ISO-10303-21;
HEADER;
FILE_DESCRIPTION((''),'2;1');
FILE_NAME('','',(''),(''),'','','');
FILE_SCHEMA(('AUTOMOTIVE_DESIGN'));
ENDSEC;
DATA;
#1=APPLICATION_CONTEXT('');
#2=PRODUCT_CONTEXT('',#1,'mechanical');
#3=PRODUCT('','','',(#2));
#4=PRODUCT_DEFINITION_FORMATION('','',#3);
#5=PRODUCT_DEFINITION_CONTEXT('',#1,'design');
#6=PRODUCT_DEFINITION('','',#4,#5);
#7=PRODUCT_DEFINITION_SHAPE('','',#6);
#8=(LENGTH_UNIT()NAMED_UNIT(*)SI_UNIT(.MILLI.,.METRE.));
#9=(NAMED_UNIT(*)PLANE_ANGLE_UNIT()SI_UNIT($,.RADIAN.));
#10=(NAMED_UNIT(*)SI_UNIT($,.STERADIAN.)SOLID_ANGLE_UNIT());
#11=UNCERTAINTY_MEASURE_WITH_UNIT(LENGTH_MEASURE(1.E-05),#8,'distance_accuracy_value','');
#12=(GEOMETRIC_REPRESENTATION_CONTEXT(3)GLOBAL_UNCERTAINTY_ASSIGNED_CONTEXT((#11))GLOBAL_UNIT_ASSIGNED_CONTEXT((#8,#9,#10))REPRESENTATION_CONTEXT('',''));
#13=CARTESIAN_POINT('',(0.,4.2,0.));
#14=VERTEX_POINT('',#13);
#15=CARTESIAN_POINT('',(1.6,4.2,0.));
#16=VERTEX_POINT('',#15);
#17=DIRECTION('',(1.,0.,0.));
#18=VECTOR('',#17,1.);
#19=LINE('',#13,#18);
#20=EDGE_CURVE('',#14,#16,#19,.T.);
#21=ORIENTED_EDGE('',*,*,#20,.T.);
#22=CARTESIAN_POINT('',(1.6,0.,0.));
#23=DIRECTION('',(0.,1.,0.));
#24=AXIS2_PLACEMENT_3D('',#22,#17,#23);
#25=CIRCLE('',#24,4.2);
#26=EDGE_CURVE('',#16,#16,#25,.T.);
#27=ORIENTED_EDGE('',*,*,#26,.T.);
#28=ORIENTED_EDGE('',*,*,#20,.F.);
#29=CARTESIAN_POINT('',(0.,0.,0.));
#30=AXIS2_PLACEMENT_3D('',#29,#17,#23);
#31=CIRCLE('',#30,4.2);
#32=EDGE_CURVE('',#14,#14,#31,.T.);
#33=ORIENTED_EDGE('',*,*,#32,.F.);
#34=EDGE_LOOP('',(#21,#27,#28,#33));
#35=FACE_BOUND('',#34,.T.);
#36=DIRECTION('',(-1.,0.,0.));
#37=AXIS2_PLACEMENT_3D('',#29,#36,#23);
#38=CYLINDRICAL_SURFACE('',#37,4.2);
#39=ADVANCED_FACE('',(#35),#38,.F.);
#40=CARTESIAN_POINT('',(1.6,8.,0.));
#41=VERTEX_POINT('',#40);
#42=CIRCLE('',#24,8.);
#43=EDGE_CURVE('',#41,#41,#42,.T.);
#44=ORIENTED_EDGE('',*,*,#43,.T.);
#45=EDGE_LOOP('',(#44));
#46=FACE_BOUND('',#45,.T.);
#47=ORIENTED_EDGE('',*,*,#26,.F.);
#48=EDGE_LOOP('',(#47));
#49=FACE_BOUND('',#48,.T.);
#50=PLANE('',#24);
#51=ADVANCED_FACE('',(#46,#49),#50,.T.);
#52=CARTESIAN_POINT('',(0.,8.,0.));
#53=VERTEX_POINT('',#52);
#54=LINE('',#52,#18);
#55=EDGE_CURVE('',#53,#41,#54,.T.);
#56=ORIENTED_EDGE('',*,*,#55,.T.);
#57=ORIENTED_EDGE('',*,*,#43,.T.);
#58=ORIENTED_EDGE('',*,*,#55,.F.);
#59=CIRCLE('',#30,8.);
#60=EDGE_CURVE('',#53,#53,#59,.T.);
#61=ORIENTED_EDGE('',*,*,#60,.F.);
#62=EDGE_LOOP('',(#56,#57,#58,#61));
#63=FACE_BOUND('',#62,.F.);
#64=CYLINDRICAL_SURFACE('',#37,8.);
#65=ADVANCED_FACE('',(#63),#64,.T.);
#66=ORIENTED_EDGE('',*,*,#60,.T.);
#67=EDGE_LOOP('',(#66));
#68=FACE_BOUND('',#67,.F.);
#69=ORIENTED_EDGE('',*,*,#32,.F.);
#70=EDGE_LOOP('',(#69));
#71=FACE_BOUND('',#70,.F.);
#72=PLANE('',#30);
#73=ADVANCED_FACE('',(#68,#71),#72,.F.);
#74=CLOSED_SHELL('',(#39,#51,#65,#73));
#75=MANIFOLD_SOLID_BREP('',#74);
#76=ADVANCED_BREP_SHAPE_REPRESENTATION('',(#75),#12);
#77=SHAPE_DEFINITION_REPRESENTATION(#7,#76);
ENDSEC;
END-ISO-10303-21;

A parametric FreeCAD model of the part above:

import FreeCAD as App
import Part
import Sketcher
from FreeCAD import Vector
Q = App.Units.Quantity

doc = App.newDocument("Part")
body = doc.addObject("PartDesign::Body", "Body")

# Sketch on YZ plane
sketch1 = body.newObject("Sketcher::SketchObject", "Sketch")
sketch1.AttachmentSupport = (doc.getObject("YZ_Plane"), [""])
sketch1.MapMode = "FlatFace"
sketch1.addGeometry([
    Part.Circle(Vector(0, 0, 0), Vector(0, 0, 1), 8),
    Part.Circle(Vector(0, 0, 0), Vector(0, 0, 1), 4.2),
], False)
sketch1.addConstraint([
    Sketcher.Constraint("Coincident", 0, 3, -1, 1),
    Sketcher.Constraint("Coincident", 1, 3, -1, 1),
    Sketcher.Constraint("Diameter", 0, Q("16 mm")),
    Sketcher.Constraint("Diameter", 1, Q("8.4 mm")),
])
pad1 = body.newObject("PartDesign::Pad", "Pad")
pad1.Profile = sketch1
pad1.Length = 1.6

doc.recompute()
